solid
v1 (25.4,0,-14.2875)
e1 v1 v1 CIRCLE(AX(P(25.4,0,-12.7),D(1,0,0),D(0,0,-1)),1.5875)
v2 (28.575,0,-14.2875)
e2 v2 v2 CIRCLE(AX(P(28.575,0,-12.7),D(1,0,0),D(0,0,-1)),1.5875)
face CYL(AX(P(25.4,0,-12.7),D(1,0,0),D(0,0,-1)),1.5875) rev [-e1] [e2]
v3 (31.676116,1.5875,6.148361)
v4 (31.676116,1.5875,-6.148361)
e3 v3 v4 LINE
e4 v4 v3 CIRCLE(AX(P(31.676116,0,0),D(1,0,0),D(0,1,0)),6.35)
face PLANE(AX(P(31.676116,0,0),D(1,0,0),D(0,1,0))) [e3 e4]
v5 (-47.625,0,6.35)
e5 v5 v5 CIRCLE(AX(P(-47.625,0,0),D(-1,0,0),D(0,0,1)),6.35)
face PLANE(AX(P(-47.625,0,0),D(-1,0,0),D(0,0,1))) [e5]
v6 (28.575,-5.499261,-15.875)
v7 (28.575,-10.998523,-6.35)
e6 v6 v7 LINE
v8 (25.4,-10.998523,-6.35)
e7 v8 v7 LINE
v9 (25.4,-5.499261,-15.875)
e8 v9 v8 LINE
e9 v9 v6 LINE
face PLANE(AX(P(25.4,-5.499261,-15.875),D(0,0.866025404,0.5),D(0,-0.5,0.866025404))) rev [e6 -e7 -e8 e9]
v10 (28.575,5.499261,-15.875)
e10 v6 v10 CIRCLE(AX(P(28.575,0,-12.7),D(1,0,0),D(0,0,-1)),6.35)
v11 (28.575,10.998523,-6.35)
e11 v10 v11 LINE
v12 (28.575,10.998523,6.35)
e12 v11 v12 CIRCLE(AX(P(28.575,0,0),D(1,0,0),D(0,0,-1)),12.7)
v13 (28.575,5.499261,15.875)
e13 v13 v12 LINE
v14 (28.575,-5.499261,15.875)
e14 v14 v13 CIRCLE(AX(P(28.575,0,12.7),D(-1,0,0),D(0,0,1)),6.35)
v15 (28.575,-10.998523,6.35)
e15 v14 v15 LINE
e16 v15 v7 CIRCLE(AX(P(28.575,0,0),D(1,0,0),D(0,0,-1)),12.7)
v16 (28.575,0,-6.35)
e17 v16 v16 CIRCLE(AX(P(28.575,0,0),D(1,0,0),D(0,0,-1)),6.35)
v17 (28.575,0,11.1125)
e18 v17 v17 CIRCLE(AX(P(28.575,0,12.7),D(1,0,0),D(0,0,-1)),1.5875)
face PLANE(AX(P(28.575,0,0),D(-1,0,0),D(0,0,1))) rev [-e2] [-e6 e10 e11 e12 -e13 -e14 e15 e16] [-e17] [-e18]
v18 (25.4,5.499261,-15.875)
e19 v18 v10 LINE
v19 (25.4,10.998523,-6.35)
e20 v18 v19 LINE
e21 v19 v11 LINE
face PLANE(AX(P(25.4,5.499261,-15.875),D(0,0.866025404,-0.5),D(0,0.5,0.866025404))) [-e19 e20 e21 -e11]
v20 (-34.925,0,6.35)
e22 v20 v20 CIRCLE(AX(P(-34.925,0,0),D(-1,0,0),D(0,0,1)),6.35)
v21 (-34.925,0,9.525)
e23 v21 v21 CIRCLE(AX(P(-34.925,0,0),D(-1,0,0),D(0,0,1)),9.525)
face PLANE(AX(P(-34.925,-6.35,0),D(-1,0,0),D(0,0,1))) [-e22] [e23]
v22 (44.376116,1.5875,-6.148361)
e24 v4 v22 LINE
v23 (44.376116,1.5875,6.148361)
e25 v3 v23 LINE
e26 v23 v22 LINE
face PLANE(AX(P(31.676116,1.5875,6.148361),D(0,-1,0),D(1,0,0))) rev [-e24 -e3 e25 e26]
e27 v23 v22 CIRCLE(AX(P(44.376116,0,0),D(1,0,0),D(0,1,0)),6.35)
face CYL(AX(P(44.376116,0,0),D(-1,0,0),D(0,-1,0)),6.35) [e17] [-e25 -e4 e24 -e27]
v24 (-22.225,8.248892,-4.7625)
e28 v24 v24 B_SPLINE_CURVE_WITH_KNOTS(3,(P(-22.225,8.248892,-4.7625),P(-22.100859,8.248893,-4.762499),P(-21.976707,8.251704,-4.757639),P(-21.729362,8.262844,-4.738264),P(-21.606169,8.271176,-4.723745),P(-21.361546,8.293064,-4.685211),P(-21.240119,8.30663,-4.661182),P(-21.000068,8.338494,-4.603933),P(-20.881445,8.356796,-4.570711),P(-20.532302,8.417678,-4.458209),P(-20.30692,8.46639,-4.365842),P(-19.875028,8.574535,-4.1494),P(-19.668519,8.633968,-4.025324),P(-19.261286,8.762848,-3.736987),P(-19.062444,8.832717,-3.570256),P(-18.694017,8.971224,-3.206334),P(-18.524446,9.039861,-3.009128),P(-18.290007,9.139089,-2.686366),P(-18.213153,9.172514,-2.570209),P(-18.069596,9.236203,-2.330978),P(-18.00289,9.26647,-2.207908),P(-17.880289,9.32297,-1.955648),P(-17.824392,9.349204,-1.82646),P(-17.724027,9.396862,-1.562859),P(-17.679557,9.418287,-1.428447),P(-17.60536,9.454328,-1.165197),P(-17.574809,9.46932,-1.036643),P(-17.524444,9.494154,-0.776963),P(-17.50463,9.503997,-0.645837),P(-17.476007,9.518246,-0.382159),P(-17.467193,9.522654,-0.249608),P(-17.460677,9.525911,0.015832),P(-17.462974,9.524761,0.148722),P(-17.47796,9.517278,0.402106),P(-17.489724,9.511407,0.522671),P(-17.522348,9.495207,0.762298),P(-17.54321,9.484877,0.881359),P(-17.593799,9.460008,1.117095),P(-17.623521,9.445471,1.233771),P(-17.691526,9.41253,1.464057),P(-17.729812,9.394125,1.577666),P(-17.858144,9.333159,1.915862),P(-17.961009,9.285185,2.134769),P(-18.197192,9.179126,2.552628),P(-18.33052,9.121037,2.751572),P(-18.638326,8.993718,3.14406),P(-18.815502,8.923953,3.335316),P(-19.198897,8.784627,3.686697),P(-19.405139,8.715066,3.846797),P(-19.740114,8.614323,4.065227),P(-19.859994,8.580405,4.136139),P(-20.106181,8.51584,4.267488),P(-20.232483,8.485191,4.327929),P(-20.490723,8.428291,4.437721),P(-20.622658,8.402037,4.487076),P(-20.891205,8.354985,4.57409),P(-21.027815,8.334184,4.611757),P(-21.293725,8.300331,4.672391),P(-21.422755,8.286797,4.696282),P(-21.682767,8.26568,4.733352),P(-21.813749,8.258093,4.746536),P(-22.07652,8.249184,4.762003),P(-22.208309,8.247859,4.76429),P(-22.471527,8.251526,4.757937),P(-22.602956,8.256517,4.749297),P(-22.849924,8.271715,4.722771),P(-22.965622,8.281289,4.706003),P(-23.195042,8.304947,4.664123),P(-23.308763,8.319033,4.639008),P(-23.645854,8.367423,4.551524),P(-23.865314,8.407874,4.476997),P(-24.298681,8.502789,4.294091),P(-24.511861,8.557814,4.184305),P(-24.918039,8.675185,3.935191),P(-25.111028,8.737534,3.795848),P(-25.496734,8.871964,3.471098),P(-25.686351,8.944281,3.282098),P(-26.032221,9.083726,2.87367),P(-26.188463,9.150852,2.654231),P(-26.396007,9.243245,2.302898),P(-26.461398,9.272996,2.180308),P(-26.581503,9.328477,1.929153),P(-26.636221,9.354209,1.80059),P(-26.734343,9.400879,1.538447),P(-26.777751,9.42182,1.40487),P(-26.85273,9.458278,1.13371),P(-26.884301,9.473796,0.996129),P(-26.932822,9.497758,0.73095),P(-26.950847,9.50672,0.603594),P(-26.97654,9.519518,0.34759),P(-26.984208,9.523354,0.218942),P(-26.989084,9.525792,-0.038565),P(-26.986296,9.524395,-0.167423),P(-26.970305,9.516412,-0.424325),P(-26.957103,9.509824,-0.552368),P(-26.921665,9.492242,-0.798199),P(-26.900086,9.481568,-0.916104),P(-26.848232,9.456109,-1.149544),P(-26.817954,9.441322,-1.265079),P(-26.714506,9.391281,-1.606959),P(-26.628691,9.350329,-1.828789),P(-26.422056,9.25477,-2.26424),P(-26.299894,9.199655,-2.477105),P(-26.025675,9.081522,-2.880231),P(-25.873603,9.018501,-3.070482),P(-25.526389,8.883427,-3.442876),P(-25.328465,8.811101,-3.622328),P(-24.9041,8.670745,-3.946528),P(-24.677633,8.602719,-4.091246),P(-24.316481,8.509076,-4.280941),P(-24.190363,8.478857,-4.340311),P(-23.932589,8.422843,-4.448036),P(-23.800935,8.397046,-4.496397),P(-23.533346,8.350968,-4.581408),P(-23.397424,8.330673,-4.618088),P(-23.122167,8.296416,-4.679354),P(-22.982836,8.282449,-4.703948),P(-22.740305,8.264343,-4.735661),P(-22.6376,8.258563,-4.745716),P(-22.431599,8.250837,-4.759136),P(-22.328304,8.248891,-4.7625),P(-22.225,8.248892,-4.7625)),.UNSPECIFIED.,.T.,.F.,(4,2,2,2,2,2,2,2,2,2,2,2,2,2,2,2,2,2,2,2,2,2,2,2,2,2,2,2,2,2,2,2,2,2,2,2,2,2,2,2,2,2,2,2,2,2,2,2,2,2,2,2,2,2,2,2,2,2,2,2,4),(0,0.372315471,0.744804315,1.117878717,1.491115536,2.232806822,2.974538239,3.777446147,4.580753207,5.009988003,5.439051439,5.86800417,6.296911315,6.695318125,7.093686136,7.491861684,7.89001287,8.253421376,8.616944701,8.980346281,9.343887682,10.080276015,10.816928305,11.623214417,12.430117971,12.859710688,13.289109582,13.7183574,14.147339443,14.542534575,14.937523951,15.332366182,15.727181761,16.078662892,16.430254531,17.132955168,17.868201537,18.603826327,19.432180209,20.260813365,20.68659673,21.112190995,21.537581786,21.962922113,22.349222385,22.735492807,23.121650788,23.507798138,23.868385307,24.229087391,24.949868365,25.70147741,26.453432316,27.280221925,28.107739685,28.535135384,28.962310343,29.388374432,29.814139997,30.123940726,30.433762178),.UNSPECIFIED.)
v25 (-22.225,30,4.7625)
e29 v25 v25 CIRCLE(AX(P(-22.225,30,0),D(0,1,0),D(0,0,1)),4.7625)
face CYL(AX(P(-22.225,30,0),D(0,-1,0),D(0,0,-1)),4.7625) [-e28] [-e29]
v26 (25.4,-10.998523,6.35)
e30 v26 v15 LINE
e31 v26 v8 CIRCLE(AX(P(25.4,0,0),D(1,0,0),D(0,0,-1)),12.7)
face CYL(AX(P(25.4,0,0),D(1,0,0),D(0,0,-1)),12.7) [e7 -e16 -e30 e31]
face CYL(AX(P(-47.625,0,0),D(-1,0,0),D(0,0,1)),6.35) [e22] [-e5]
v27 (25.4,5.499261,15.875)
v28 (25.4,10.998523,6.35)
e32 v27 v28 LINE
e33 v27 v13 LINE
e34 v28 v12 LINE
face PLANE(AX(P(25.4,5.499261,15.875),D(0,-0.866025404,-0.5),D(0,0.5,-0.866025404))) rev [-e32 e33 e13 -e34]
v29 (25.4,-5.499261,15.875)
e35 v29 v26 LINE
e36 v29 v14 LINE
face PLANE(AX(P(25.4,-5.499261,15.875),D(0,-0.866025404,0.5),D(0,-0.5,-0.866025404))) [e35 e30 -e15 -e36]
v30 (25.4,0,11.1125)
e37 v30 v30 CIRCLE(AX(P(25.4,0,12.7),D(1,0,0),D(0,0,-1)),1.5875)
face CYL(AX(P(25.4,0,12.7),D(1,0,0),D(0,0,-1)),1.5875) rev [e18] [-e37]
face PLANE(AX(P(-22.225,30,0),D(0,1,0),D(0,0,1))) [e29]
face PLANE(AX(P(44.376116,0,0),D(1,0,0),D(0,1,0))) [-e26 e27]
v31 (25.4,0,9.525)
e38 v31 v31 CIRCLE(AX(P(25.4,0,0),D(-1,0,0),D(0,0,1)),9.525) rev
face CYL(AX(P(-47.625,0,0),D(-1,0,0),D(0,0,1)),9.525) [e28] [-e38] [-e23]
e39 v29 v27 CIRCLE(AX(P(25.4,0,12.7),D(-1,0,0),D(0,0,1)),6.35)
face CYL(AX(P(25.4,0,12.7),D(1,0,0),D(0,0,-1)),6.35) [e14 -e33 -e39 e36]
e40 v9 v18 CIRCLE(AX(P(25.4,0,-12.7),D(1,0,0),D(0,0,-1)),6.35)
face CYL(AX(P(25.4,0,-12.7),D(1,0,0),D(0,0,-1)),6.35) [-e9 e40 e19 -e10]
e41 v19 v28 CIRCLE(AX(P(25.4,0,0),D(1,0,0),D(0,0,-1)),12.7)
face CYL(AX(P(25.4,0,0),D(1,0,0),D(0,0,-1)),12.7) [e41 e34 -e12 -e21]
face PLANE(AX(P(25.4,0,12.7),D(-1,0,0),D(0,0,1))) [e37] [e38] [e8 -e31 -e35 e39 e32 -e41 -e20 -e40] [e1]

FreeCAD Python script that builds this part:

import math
import FreeCAD as App
import Part
import Sketcher
from FreeCAD import Vector
Q = App.Units.Quantity


def add_polygon(sketch, points):
    """Adds a closed chain of lines whose ends are joined by coincident constraints."""
    first, n = sketch.GeometryCount, len(points)
    for a, b in zip(points, points[1:] + points[:1]):
        sketch.addGeometry(Part.LineSegment(App.Vector(*a, 0), App.Vector(*b, 0)), False)
    for i in range(n):
        sketch.addConstraint(Sketcher.Constraint("Coincident", first + i, 2, first + (i + 1) % n, 1))

doc = App.newDocument("Part")
body = doc.addObject("PartDesign::Body", "Body")

sketch1 = body.newObject("Sketcher::SketchObject", "Sketch")
sketch1.AttachmentSupport = (doc.getObject("XY_Plane"), [""])
sketch1.MapMode = "FlatFace"
add_polygon(sketch1, [(-47.6, 0), (-47.6, -6.3), (-34.9, -6.3), (-34.9, -9.5), (28.6, -9.5), (28.6, 0)])
sketch1.addConstraint([
    Sketcher.Constraint("Vertical", 0),
    Sketcher.Constraint("Horizontal", 1),
    Sketcher.Constraint("Vertical", 2),
    Sketcher.Constraint("Horizontal", 3),
    Sketcher.Constraint("Vertical", 4),
    Sketcher.Constraint("Horizontal", 5),
    Sketcher.Constraint("PointOnObject", 4, 2, -1),
    Sketcher.Constraint("DistanceX", 5, 2, 5, 1, Q("3 in")),
    Sketcher.Constraint("DistanceX", 1, 1, 1, 2, Q("0.5 in")),
    Sketcher.Constraint("DistanceY", 0, 2, 0, 1, Q("0.25 in")),
    Sketcher.Constraint("DistanceY", 2, 2, 2, 1, Q("0.125 in")),
    Sketcher.Constraint("DistanceX", 0, 2, -1, 1, Q("1.875 in")),
])
revolution = body.newObject("PartDesign::Revolution", "Revolution")
revolution.Profile = sketch1
revolution.ReferenceAxis = (sketch1, ["H_Axis"])
revolution.Angle = 360

sketch2 = body.newObject("Sketcher::SketchObject", "Sketch001")
sketch2.AttachmentSupport = (doc.getObject("YZ_Plane"), [""])
sketch2.MapMode = "FlatFace"
sketch2.AttachmentOffset = App.Placement(Vector(0, 0, 1.125 * 25.4), App.Rotation())
sketch2.addGeometry([
    Part.LineSegment(Vector(11, 6.4, 0), Vector(5.5, 15.9, 0)),
    Part.ArcOfCircle(Part.Circle(Vector(0, 12.7, 0), Vector(0, 0, 1), 6.3), math.radians(30), math.radians(150)),
    Part.LineSegment(Vector(-5.5, 15.9, 0), Vector(-11, 6.4, 0)),
    Part.ArcOfCircle(Part.Circle(Vector(0, 0, 0), Vector(0, 0, 1), 12.7), math.radians(150), math.radians(210)),
    Part.LineSegment(Vector(-11, -6.3, 0), Vector(-5.5, -15.9, 0)),
    Part.ArcOfCircle(Part.Circle(Vector(0, -12.7, 0), Vector(0, 0, 1), 6.3), math.radians(-150), math.radians(-30)),
    Part.LineSegment(Vector(5.5, -15.9, 0), Vector(11, -6.3, 0)),
    Part.ArcOfCircle(Part.Circle(Vector(0, 0, 0), Vector(0, 0, 1), 12.7), math.radians(-30), math.radians(30)),
    Part.Circle(Vector(0, -12.7, 0), Vector(0, 0, 1), 1.6),
    Part.Circle(Vector(0, 12.7, 0), Vector(0, 0, 1), 1.6),
], False)
sketch2.addConstraint([
    Sketcher.Constraint("Tangent", 0, 2, 1, 1),
    Sketcher.Constraint("Tangent", 1, 2, 2, 1),
    Sketcher.Constraint("Tangent", 2, 2, 3, 1),
    Sketcher.Constraint("Tangent", 3, 2, 4, 1),
    Sketcher.Constraint("Tangent", 4, 2, 5, 1),
    Sketcher.Constraint("Tangent", 5, 2, 6, 1),
    Sketcher.Constraint("Tangent", 6, 2, 7, 1),
    Sketcher.Constraint("Tangent", 7, 2, 0, 1),
    Sketcher.Constraint("Coincident", 3, 3, -1, 1),
    Sketcher.Constraint("Coincident", 7, 3, -1, 1),
    Sketcher.Constraint("Coincident", 8, 3, 5, 3),
    Sketcher.Constraint("Coincident", 9, 3, 1, 3),
    Sketcher.Constraint("Equal", 1, 5),
    Sketcher.Constraint("Equal", 3, 7),
    Sketcher.Constraint("Equal", 8, 9),
    Sketcher.Constraint("Symmetric", 1, 3, 5, 3, -1, 1),
    Sketcher.Constraint("PointOnObject", 1, 3, -2),
    Sketcher.Constraint("Radius", 3, Q("0.5 in")),
    Sketcher.Constraint("Radius", 1, Q("0.25 in")),
    Sketcher.Constraint("Diameter", 8, Q("0.125 in")),
    Sketcher.Constraint("Angle", 0, Q("120 deg")),
])
pad1 = body.newObject("PartDesign::Pad", "Pad")
pad1.Profile = sketch2
pad1.Length = Q("0.125 in")
pad1.Reversed = True

sketch3 = body.newObject("Sketcher::SketchObject", "Sketch002")
sketch3.AttachmentSupport = (doc.getObject("YZ_Plane"), [""])
sketch3.MapMode = "FlatFace"
sketch3.AttachmentOffset = App.Placement(Vector(0, 0, 1.125 * 25.4), App.Rotation())
sketch3.addGeometry(Part.Circle(Vector(0, 0, 0), Vector(0, 0, 1), 6), False)
sketch3.addConstraint([
    Sketcher.Constraint("Coincident", 0, 3, -1, 1),
    Sketcher.Constraint("Diameter", 0, Q("0.5 in")),
])
pocket1 = body.newObject("PartDesign::Pocket", "Pocket")
pocket1.Profile = sketch3
pocket1.Length = 41.348884

sketch4 = body.newObject("Sketcher::SketchObject", "Sketch003")
sketch4.AttachmentSupport = (doc.getObject("YZ_Plane"), [""])
sketch4.MapMode = "FlatFace"
sketch4.AttachmentOffset = App.Placement(Vector(0, 0, -12.773884), App.Rotation())
sketch4.addGeometry(Part.Circle(Vector(0, 0, 0), Vector(0, 0, 1), 6), False)
sketch4.addConstraint([
    Sketcher.Constraint("Coincident", 0, 3, -1, 1),
    Sketcher.Constraint("Diameter", 0, Q("0.5 in")),
])
pad2 = body.newObject("PartDesign::Pad", "Pad001")
pad2.Profile = sketch4
pad2.Length = Q("2.25 in")

sketch5 = body.newObject("Sketcher::SketchObject", "Sketch004")
sketch5.AttachmentSupport = (doc.getObject("YZ_Plane"), [""])
sketch5.MapMode = "FlatFace"
sketch5.AttachmentOffset = App.Placement(Vector(0, 0, 44.376116), App.Rotation())
sketch5.addGeometry([
    Part.LineSegment(Vector(2, 6, 0), Vector(2, -6, 0)),
    Part.ArcOfCircle(Part.Circle(Vector(0, 0, 0), Vector(0, 0, 1), 6), math.radians(-76), math.radians(76)),
], False)
sketch5.addConstraint([
    Sketcher.Constraint("Coincident", 0, 1, 1, 2),
    Sketcher.Constraint("Coincident", 1, 1, 0, 2),
    Sketcher.Constraint("Vertical", 0),
    Sketcher.Constraint("Coincident", 1, 3, -1, 1),
    Sketcher.Constraint("Radius", 1, Q("0.25 in")),
    Sketcher.Constraint("DistanceX", -1, 1, 0, 1, Q("0.0625 in")),
])
pocket2 = body.newObject("PartDesign::Pocket", "Pocket001")
pocket2.Profile = sketch5
pocket2.Length = Q("0.5 in")

sketch6 = body.newObject("Sketcher::SketchObject", "Sketch005")
sketch6.AttachmentSupport = (doc.getObject("XZ_Plane"), [""])
sketch6.MapMode = "FlatFace"
sketch6.addGeometry(Part.Circle(Vector(-22.2, 0, 0), Vector(0, 0, 1), 4.8), False)
sketch6.addConstraint([
    Sketcher.Constraint("PointOnObject", 0, 3, -1),
    Sketcher.Constraint("Diameter", 0, Q("0.375 in")),
    Sketcher.Constraint("DistanceX", 0, 3, -1, 1, Q("0.875 in")),
])
pad3 = body.newObject("PartDesign::Pad", "Pad002")
pad3.Profile = sketch6
pad3.Length = 30
pad3.Reversed = True

doc.recompute()
